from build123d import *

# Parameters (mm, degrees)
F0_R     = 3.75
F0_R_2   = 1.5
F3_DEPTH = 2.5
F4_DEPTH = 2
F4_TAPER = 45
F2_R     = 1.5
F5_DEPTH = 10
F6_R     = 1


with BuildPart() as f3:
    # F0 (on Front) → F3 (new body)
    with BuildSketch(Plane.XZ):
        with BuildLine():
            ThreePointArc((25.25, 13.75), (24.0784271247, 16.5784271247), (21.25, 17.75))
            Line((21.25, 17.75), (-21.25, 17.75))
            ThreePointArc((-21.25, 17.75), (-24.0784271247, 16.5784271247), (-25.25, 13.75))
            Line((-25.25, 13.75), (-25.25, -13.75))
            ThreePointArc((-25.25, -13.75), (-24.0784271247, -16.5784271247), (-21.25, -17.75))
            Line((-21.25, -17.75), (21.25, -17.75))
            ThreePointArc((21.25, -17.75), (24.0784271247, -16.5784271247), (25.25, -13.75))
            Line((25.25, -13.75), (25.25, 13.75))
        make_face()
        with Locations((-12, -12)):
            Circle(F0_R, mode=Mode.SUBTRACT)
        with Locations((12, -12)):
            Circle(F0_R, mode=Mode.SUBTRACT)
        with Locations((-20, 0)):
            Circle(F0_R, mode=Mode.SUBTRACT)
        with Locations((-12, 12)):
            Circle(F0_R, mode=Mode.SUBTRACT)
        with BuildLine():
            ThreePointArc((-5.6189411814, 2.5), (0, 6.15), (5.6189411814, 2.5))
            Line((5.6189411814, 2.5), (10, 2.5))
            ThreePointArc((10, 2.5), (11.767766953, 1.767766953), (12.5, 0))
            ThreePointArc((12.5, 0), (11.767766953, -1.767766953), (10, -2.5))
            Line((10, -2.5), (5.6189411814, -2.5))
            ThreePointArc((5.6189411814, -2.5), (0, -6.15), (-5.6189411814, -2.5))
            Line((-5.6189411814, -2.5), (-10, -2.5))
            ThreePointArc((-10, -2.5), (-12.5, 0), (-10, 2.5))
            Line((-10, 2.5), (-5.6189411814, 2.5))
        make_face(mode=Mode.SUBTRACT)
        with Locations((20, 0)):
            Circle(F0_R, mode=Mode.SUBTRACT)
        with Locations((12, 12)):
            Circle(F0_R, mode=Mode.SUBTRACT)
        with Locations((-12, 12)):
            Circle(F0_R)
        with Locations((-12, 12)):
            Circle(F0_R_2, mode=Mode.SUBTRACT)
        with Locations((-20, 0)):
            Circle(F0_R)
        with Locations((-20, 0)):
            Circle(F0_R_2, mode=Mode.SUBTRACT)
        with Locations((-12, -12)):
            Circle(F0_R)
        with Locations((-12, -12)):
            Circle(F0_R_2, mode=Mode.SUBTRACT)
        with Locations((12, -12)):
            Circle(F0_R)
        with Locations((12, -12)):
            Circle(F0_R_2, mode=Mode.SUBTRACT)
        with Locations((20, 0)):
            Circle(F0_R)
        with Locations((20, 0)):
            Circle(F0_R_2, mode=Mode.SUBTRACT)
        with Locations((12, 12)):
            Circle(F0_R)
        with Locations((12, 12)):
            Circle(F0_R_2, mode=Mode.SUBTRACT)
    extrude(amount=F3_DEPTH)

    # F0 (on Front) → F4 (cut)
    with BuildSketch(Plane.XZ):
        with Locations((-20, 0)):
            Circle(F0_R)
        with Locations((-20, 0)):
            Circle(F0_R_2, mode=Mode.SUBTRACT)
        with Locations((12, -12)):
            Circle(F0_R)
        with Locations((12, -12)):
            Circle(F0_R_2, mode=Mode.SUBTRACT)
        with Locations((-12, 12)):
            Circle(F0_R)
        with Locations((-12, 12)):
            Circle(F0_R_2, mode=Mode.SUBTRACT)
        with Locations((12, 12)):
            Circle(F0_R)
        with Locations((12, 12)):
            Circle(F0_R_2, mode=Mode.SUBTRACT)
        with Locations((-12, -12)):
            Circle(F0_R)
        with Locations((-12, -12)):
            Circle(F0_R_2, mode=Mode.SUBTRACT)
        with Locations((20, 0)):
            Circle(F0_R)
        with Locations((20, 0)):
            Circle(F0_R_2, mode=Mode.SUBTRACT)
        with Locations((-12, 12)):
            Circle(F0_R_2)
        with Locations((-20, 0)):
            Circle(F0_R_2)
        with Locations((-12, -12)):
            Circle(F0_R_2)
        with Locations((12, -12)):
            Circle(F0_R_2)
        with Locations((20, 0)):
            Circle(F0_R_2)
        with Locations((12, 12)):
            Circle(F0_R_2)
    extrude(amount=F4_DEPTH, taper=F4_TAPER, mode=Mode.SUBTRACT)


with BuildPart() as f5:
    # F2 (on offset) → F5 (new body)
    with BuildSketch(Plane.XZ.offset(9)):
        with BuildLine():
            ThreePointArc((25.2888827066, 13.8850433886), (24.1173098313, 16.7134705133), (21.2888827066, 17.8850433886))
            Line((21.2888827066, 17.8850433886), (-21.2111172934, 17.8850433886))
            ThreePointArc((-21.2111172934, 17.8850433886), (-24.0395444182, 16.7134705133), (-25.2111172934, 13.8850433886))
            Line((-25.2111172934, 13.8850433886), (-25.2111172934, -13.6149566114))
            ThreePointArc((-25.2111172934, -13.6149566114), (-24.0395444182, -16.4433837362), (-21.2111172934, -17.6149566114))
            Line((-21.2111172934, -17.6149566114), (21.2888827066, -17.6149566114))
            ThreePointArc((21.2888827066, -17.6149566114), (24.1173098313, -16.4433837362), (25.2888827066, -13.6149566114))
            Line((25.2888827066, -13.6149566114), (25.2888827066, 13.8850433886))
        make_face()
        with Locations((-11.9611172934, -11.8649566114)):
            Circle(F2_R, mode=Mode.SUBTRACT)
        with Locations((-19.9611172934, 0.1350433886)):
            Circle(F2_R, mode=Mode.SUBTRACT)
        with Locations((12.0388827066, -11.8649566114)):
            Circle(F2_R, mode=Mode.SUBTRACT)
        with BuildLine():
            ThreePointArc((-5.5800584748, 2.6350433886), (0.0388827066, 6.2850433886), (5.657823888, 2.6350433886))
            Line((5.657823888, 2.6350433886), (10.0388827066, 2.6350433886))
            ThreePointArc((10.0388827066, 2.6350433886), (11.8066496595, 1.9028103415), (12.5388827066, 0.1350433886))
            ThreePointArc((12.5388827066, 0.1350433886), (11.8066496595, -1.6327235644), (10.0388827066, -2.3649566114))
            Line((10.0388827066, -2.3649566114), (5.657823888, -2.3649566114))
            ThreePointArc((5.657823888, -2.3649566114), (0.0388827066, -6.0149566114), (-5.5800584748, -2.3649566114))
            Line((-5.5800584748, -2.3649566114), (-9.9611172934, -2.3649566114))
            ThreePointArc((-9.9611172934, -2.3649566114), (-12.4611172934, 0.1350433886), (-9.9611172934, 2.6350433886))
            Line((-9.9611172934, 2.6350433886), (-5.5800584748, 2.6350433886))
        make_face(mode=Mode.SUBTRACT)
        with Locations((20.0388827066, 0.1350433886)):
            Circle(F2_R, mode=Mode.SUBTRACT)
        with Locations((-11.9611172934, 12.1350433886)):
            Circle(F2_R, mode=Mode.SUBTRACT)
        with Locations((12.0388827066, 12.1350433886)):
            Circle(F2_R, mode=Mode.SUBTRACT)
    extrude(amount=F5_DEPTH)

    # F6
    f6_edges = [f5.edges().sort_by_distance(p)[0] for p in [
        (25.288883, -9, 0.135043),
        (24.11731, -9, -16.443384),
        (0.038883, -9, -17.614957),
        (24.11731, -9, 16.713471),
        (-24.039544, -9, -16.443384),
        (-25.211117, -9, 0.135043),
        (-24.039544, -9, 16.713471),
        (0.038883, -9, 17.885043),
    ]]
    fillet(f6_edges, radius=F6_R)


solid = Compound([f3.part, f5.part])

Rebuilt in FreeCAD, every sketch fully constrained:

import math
import FreeCAD as App
import Part
import Sketcher

V = App.Vector


def edges_at(feature, points):
    """Names of the edges that pass closest to the given points."""
    edges = feature.Shape.Edges
    near = lambda p: min(range(len(edges)), key=lambda i: edges[i].distToShape(Part.Vertex(*p))[0])
    return sorted({f"Edge{near(p) + 1}" for p in points})

doc = App.newDocument("Part")
body = doc.addObject("PartDesign::Body", "Body")

# Sketch on XZ plane
sketch1 = body.newObject("Sketcher::SketchObject", "Sketch")
sketch1.AttachmentSupport = (doc.getObject("XZ_Plane"), [""])
sketch1.MapMode = "FlatFace"
sketch1.addGeometry(Part.ArcOfCircle(Part.Circle(V(21.25, 13.75, 0), V(0, 0, 1), 4), math.radians(0), math.radians(90)), False)
sketch1.addGeometry(Part.LineSegment(V(21.25, 17.75, 0), V(-21.25, 17.75, 0)), False)
sketch1.addGeometry(Part.ArcOfCircle(Part.Circle(V(-21.25, 13.75, 0), V(0, 0, 1), 4), math.radians(90), math.radians(180)), False)
sketch1.addGeometry(Part.LineSegment(V(-25.25, 13.75, 0), V(-25.25, -13.75, 0)), False)
sketch1.addGeometry(Part.ArcOfCircle(Part.Circle(V(-21.25, -13.75, 0), V(0, 0, 1), 4), math.radians(180), math.radians(270)), False)
sketch1.addGeometry(Part.LineSegment(V(-21.25, -17.75, 0), V(21.25, -17.75, 0)), False)
sketch1.addGeometry(Part.ArcOfCircle(Part.Circle(V(21.25, -13.75, 0), V(0, 0, 1), 4), math.radians(-90), math.radians(0)), False)
sketch1.addGeometry(Part.LineSegment(V(25.25, -13.75, 0), V(25.25, 13.75, 0)), False)
sketch1.addGeometry(Part.Circle(V(-12, -12, 0), V(0, 0, 1), 1.5), False)
sketch1.addGeometry(Part.Circle(V(12, -12, 0), V(0, 0, 1), 1.5), False)
sketch1.addGeometry(Part.Circle(V(-20, 0, 0), V(0, 0, 1), 1.5), False)
sketch1.addGeometry(Part.Circle(V(-12, 12, 0), V(0, 0, 1), 1.5), False)
sketch1.addGeometry(Part.LineSegment(V(-10, 2.5, 0), V(-5.618941, 2.5, 0)), False)
sketch1.addGeometry(Part.ArcOfCircle(Part.Circle(V(0, 0, 0), V(0, 0, 1), 6.15), math.radians(23.985414), math.radians(156.014586)), False)
sketch1.addGeometry(Part.LineSegment(V(5.618941, 2.5, 0), V(10, 2.5, 0)), False)
sketch1.addGeometry(Part.ArcOfCircle(Part.Circle(V(10, 0, 0), V(0, 0, 1), 2.5), math.radians(0), math.radians(90)), False)
sketch1.addGeometry(Part.ArcOfCircle(Part.Circle(V(10, 0, 0), V(0, 0, 1), 2.5), math.radians(-90), math.radians(0)), False)
sketch1.addGeometry(Part.LineSegment(V(10, -2.5, 0), V(5.618941, -2.5, 0)), False)
sketch1.addGeometry(Part.ArcOfCircle(Part.Circle(V(0, 0, 0), V(0, 0, 1), 6.15), math.radians(-156.014586), math.radians(-23.985414)), False)
sketch1.addGeometry(Part.LineSegment(V(-5.618941, -2.5, 0), V(-10, -2.5, 0)), False)
sketch1.addGeometry(Part.ArcOfCircle(Part.Circle(V(-10, 0, 0), V(0, 0, 1), 2.5), math.radians(90), math.radians(270)), False)
sketch1.addGeometry(Part.Circle(V(20, 0, 0), V(0, 0, 1), 1.5), False)
sketch1.addGeometry(Part.Circle(V(12, 12, 0), V(0, 0, 1), 1.5), False)
sketch1.addConstraint(Sketcher.Constraint("Tangent", 0, 2, 1, 1))
sketch1.addConstraint(Sketcher.Constraint("Tangent", 1, 2, 2, 1))
sketch1.addConstraint(Sketcher.Constraint("Tangent", 2, 2, 3, 1))
sketch1.addConstraint(Sketcher.Constraint("Tangent", 3, 2, 4, 1))
sketch1.addConstraint(Sketcher.Constraint("Tangent", 4, 2, 5, 1))
sketch1.addConstraint(Sketcher.Constraint("Tangent", 5, 2, 6, 1))
sketch1.addConstraint(Sketcher.Constraint("Tangent", 6, 2, 7, 1))
sketch1.addConstraint(Sketcher.Constraint("Tangent", 7, 2, 0, 1))
sketch1.addConstraint(Sketcher.Constraint("Coincident", 12, 2, 13, 2))
sketch1.addConstraint(Sketcher.Constraint("Coincident", 13, 1, 14, 1))
sketch1.addConstraint(Sketcher.Constraint("Tangent", 14, 2, 15, 2))
sketch1.addConstraint(Sketcher.Constraint("Tangent", 15, 1, 16, 2))
sketch1.addConstraint(Sketcher.Constraint("Tangent", 16, 1, 17, 1))
sketch1.addConstraint(Sketcher.Constraint("Coincident", 17, 2, 18, 2))
sketch1.addConstraint(Sketcher.Constraint("Coincident", 18, 1, 19, 1))
sketch1.addConstraint(Sketcher.Constraint("Tangent", 19, 2, 20, 2))
sketch1.addConstraint(Sketcher.Constraint("Tangent", 20, 1, 12, 1))
sketch1.addConstraint(Sketcher.Constraint("Horizontal", 1))
sketch1.addConstraint(Sketcher.Constraint("Vertical", 3))
sketch1.addConstraint(Sketcher.Constraint("Horizontal", 5))
sketch1.addConstraint(Sketcher.Constraint("Vertical", 7))
sketch1.addConstraint(Sketcher.Constraint("Horizontal", 12))
sketch1.addConstraint(Sketcher.Constraint("Horizontal", 14))
sketch1.addConstraint(Sketcher.Constraint("Horizontal", 17))
sketch1.addConstraint(Sketcher.Constraint("Horizontal", 19))
sketch1.addConstraint(Sketcher.Constraint("Coincident", 13, 3, -1, 1))
sketch1.addConstraint(Sketcher.Constraint("Coincident", 18, 3, -1, 1))
sketch1.addConstraint(Sketcher.Constraint("Equal", 0, 2))
sketch1.addConstraint(Sketcher.Constraint("Equal", 2, 4))
sketch1.addConstraint(Sketcher.Constraint("Equal", 4, 6))
sketch1.addConstraint(Sketcher.Constraint("Equal", 8, 9))
sketch1.addConstraint(Sketcher.Constraint("Equal", 9, 10))
sketch1.addConstraint(Sketcher.Constraint("Equal", 10, 11))
sketch1.addConstraint(Sketcher.Constraint("Equal", 15, 16))
sketch1.addConstraint(Sketcher.Constraint("Equal", 13, 18))
sketch1.addConstraint(Sketcher.Constraint("Equal", 16, 20))
sketch1.addConstraint(Sketcher.Constraint("Equal", 11, 21))
sketch1.addConstraint(Sketcher.Constraint("Equal", 21, 22))
sketch1.addConstraint(Sketcher.Constraint("Symmetric", 0, 3, 4, 3, -1, 1))
sketch1.addConstraint(Sketcher.Constraint("Symmetric", 9, 3, 11, 3, -1, 1))
sketch1.addConstraint(Sketcher.Constraint("Symmetric", 15, 3, 20, 3, -1, 1))
sketch1.addConstraint(Sketcher.Constraint("Symmetric", 10, 3, 21, 3, -1, 1))
sketch1.addConstraint(Sketcher.Constraint("Symmetric", 8, 3, 22, 3, -1, 1))
sketch1.addConstraint(Sketcher.Constraint("Symmetric", 8, 3, 9, 3, -2))
sketch1.addConstraint(Sketcher.Constraint("PointOnObject", 10, 3, -1))
sketch1.addConstraint(Sketcher.Constraint("PointOnObject", 15, 3, -1))
sketch1.addConstraint(Sketcher.Constraint("PointOnObject", 15, 1, -1))
sketch1.addConstraint(Sketcher.Constraint("Diameter", 8, 3.0))
sketch1.addConstraint(Sketcher.Constraint("Radius", 0, 4.0))
sketch1.addConstraint(Sketcher.Constraint("Radius", 15, 2.5))
sketch1.addConstraint(Sketcher.Constraint("Radius", 13, 6.15))
sketch1.addConstraint(Sketcher.Constraint("DistanceX", 1, 2, 1, 1, 42.5))
sketch1.addConstraint(Sketcher.Constraint("DistanceY", 3, 2, 3, 1, 27.5))
sketch1.addConstraint(Sketcher.Constraint("DistanceX", 8, 3, -1, 1, 12.0))
sketch1.addConstraint(Sketcher.Constraint("DistanceY", 8, 3, -1, 1, 12.0))
sketch1.addConstraint(Sketcher.Constraint("DistanceX", 10, 3, -1, 1, 20.0))
sketch1.addConstraint(Sketcher.Constraint("DistanceX", -1, 1, 15, 3, 10.0))
pad1 = body.newObject("PartDesign::Pad", "Pad")
pad1.Profile = sketch1
pad1.Length = 2.5

# Sketch on XZ plane
sketch2 = body.newObject("Sketcher::SketchObject", "Sketch001")
sketch2.AttachmentSupport = (doc.getObject("XZ_Plane"), [""])
sketch2.MapMode = "FlatFace"
sketch2.addGeometry(Part.Circle(V(-20, 0, 0), V(0, 0, 1), 3.75), False)
sketch2.addGeometry(Part.Circle(V(12, -12, 0), V(0, 0, 1), 3.75), False)
sketch2.addGeometry(Part.Circle(V(-12, 12, 0), V(0, 0, 1), 3.75), False)
sketch2.addGeometry(Part.Circle(V(12, 12, 0), V(0, 0, 1), 3.75), False)
sketch2.addGeometry(Part.Circle(V(-12, -12, 0), V(0, 0, 1), 3.75), False)
sketch2.addGeometry(Part.Circle(V(20, 0, 0), V(0, 0, 1), 3.75), False)
sketch2.addConstraint(Sketcher.Constraint("Equal", 0, 1))
sketch2.addConstraint(Sketcher.Constraint("Equal", 1, 2))
sketch2.addConstraint(Sketcher.Constraint("Equal", 2, 3))
sketch2.addConstraint(Sketcher.Constraint("Equal", 3, 4))
sketch2.addConstraint(Sketcher.Constraint("Equal", 4, 5))
sketch2.addConstraint(Sketcher.Constraint("Symmetric", 1, 3, 2, 3, -1, 1))
sketch2.addConstraint(Sketcher.Constraint("Symmetric", 3, 3, 4, 3, -1, 1))
sketch2.addConstraint(Sketcher.Constraint("Symmetric", 0, 3, 5, 3, -1, 1))
sketch2.addConstraint(Sketcher.Constraint("Symmetric", 2, 3, 3, 3, -2))
sketch2.addConstraint(Sketcher.Constraint("PointOnObject", 0, 3, -1))
sketch2.addConstraint(Sketcher.Constraint("Diameter", 0, 7.5))
sketch2.addConstraint(Sketcher.Constraint("DistanceX", 0, 3, -1, 1, 20.0))
sketch2.addConstraint(Sketcher.Constraint("DistanceX", -1, 1, 1, 3, 12.0))
sketch2.addConstraint(Sketcher.Constraint("DistanceY", 1, 3, -1, 1, 12.0))
pocket1 = body.newObject("PartDesign::Pocket", "Pocket")
pocket1.Profile = sketch2
pocket1.Length = 2
pocket1.Reversed = True
pocket1.TaperAngle = -45
body2 = doc.addObject("PartDesign::Body", "Body001")

# Sketch on XZ plane
sketch3 = body2.newObject("Sketcher::SketchObject", "Sketch002")
sketch3.AttachmentSupport = (doc.getObject("XZ_Plane001"), [""])
sketch3.MapMode = "FlatFace"
sketch3.AttachmentOffset = App.Placement(V(0, 0, 9), App.Rotation())
sketch3.addGeometry(Part.ArcOfCircle(Part.Circle(V(21.288883, 13.885043, 0), V(0, 0, 1), 4), math.radians(0), math.radians(90)), False)
sketch3.addGeometry(Part.LineSegment(V(21.288883, 17.885043, 0), V(-21.211117, 17.885043, 0)), False)
sketch3.addGeometry(Part.ArcOfCircle(Part.Circle(V(-21.211117, 13.885043, 0), V(0, 0, 1), 4), math.radians(90), math.radians(180)), False)
sketch3.addGeometry(Part.LineSegment(V(-25.211117, 13.885043, 0), V(-25.211117, -13.614957, 0)), False)
sketch3.addGeometry(Part.ArcOfCircle(Part.Circle(V(-21.211117, -13.614957, 0), V(0, 0, 1), 4), math.radians(180), math.radians(270)), False)
sketch3.addGeometry(Part.LineSegment(V(-21.211117, -17.614957, 0), V(21.288883, -17.614957, 0)), False)
sketch3.addGeometry(Part.ArcOfCircle(Part.Circle(V(21.288883, -13.614957, 0), V(0, 0, 1), 4), math.radians(-90), math.radians(0)), False)
sketch3.addGeometry(Part.LineSegment(V(25.288883, -13.614957, 0), V(25.288883, 13.885043, 0)), False)
sketch3.addGeometry(Part.Circle(V(-11.961117, -11.864957, 0), V(0, 0, 1), 1.5), False)
sketch3.addGeometry(Part.Circle(V(12.038883, -11.864957, 0), V(0, 0, 1), 1.5), False)
sketch3.addGeometry(Part.Circle(V(-19.961117, 0.135043, 0), V(0, 0, 1), 1.5), False)
sketch3.addGeometry(Part.Circle(V(-11.961117, 12.135043, 0), V(0, 0, 1), 1.5), False)
sketch3.addGeometry(Part.LineSegment(V(-9.961117, 2.635043, 0), V(-5.580058, 2.635043, 0)), False)
sketch3.addGeometry(Part.ArcOfCircle(Part.Circle(V(0.038883, 0.135043, 0), V(0, 0, 1), 6.15), math.radians(23.985414), math.radians(156.014586)), False)
sketch3.addGeometry(Part.LineSegment(V(5.657824, 2.635043, 0), V(10.038883, 2.635043, 0)), False)
sketch3.addGeometry(Part.ArcOfCircle(Part.Circle(V(10.038883, 0.135043, 0), V(0, 0, 1), 2.5), math.radians(0), math.radians(90)), False)
sketch3.addGeometry(Part.ArcOfCircle(Part.Circle(V(10.038883, 0.135043, 0), V(0, 0, 1), 2.5), math.radians(-90), math.radians(0)), False)
sketch3.addGeometry(Part.LineSegment(V(10.038883, -2.364957, 0), V(5.657824, -2.364957, 0)), False)
sketch3.addGeometry(Part.ArcOfCircle(Part.Circle(V(0.038883, 0.135043, 0), V(0, 0, 1), 6.15), math.radians(-156.014586), math.radians(-23.985414)), False)
sketch3.addGeometry(Part.LineSegment(V(-5.580058, -2.364957, 0), V(-9.961117, -2.364957, 0)), False)
sketch3.addGeometry(Part.ArcOfCircle(Part.Circle(V(-9.961117, 0.135043, 0), V(0, 0, 1), 2.5), math.radians(90), math.radians(270)), False)
sketch3.addGeometry(Part.Circle(V(20.038883, 0.135043, 0), V(0, 0, 1), 1.5), False)
sketch3.addGeometry(Part.Circle(V(12.038883, 12.135043, 0), V(0, 0, 1), 1.5), False)
sketch3.addConstraint(Sketcher.Constraint("Tangent", 0, 2, 1, 1))
sketch3.addConstraint(Sketcher.Constraint("Tangent", 1, 2, 2, 1))
sketch3.addConstraint(Sketcher.Constraint("Tangent", 2, 2, 3, 1))
sketch3.addConstraint(Sketcher.Constraint("Tangent", 3, 2, 4, 1))
sketch3.addConstraint(Sketcher.Constraint("Tangent", 4, 2, 5, 1))
sketch3.addConstraint(Sketcher.Constraint("Tangent", 5, 2, 6, 1))
sketch3.addConstraint(Sketcher.Constraint("Tangent", 6, 2, 7, 1))
sketch3.addConstraint(Sketcher.Constraint("Tangent", 7, 2, 0, 1))
sketch3.addConstraint(Sketcher.Constraint("Coincident", 12, 2, 13, 2))
sketch3.addConstraint(Sketcher.Constraint("Coincident", 13, 1, 14, 1))
sketch3.addConstraint(Sketcher.Constraint("Tangent", 14, 2, 15, 2))
sketch3.addConstraint(Sketcher.Constraint("Tangent", 15, 1, 16, 2))
sketch3.addConstraint(Sketcher.Constraint("Tangent", 16, 1, 17, 1))
sketch3.addConstraint(Sketcher.Constraint("Coincident", 17, 2, 18, 2))
sketch3.addConstraint(Sketcher.Constraint("Coincident", 18, 1, 19, 1))
sketch3.addConstraint(Sketcher.Constraint("Tangent", 19, 2, 20, 2))
sketch3.addConstraint(Sketcher.Constraint("Tangent", 20, 1, 12, 1))
sketch3.addConstraint(Sketcher.Constraint("Horizontal", 1))
sketch3.addConstraint(Sketcher.Constraint("Vertical", 3))
sketch3.addConstraint(Sketcher.Constraint("Horizontal", 5))
sketch3.addConstraint(Sketcher.Constraint("Vertical", 7))
sketch3.addConstraint(Sketcher.Constraint("Horizontal", 12))
sketch3.addConstraint(Sketcher.Constraint("Horizontal", 14))
sketch3.addConstraint(Sketcher.Constraint("Horizontal", 17))
sketch3.addConstraint(Sketcher.Constraint("Horizontal", 19))
sketch3.addConstraint(Sketcher.Constraint("Coincident", 18, 3, 13, 3))
sketch3.addConstraint(Sketcher.Constraint("Equal", 0, 2))
sketch3.addConstraint(Sketcher.Constraint("Equal", 2, 4))
sketch3.addConstraint(Sketcher.Constraint("Equal", 4, 6))
sketch3.addConstraint(Sketcher.Constraint("Equal", 8, 9))
sketch3.addConstraint(Sketcher.Constraint("Equal", 9, 10))
sketch3.addConstraint(Sketcher.Constraint("Equal", 10, 11))
sketch3.addConstraint(Sketcher.Constraint("Equal", 15, 16))
sketch3.addConstraint(Sketcher.Constraint("Equal", 13, 18))
sketch3.addConstraint(Sketcher.Constraint("Equal", 16, 20))
sketch3.addConstraint(Sketcher.Constraint("Equal", 11, 21))
sketch3.addConstraint(Sketcher.Constraint("Equal", 21, 22))
sketch3.addConstraint(Sketcher.Constraint("Horizontal", 8, 3, 9, 3))
sketch3.addConstraint(Sketcher.Constraint("Horizontal", 10, 3, 13, 3))
sketch3.addConstraint(Sketcher.Constraint("Horizontal", 13, 3, 15, 3))
sketch3.addConstraint(Sketcher.Constraint("Horizontal", 18, 3, 20, 3))
sketch3.addConstraint(Sketcher.Constraint("Horizontal", 20, 3, 21, 3))
sketch3.addConstraint(Sketcher.Constraint("Horizontal", 11, 3, 22, 3))
sketch3.addConstraint(Sketcher.Constraint("Horizontal", 21, 3, 15, 1))
sketch3.addConstraint(Sketcher.Constraint("Vertical", 8, 3, 11, 3))
sketch3.addConstraint(Sketcher.Constraint("Vertical", 9, 3, 22, 3))
sketch3.addConstraint(Sketcher.Constraint("Equal", 12, 14))
sketch3.addConstraint(Sketcher.Constraint("Diameter", 8, 3.0))
sketch3.addConstraint(Sketcher.Constraint("Radius", 0, 4.0))
sketch3.addConstraint(Sketcher.Constraint("Radius", 15, 2.5))
sketch3.addConstraint(Sketcher.Constraint("Radius", 13, 6.15))
sketch3.addConstraint(Sketcher.Constraint("DistanceX", 1, 2, 1, 1, 42.5))
sketch3.addConstraint(Sketcher.Constraint("DistanceY", 3, 2, 3, 1, 27.5))
sketch3.addConstraint(Sketcher.Constraint("DistanceX", 8, 3, 9, 3, 24.0))
sketch3.addConstraint(Sketcher.Constraint("DistanceX", 10, 3, 8, 3, 8.0))
sketch3.addConstraint(Sketcher.Constraint("DistanceY", 8, 3, 10, 3, 12.0))
sketch3.addConstraint(Sketcher.Constraint("DistanceY", 10, 3, 11, 3, 12.0))
sketch3.addConstraint(Sketcher.Constraint("DistanceX", 8, 3, 13, 3, 12.0))
sketch3.addConstraint(Sketcher.Constraint("DistanceX", 13, 3, 15, 3, 10.0))
sketch3.addConstraint(Sketcher.Constraint("DistanceX", 16, 3, 21, 3, 10.0))
sketch3.addConstraint(Sketcher.Constraint("DistanceX", 4, 3, 8, 3, 9.25))
sketch3.addConstraint(Sketcher.Constraint("DistanceY", 4, 3, 8, 3, 1.75))
sketch3.addConstraint(Sketcher.Constraint("DistanceX", 12, 2, -1, 1, 5.580058))
sketch3.addConstraint(Sketcher.Constraint("DistanceY", -1, 1, 0, 3, 13.885043))
pad2 = body2.newObject("PartDesign::Pad", "Pad001")
pad2.Profile = sketch3
pad2.Length = 10
doc.recompute()

fillet = body2.newObject("PartDesign::Fillet", "Fillet")
fillet.Base = (pad2, edges_at(pad2, [
    (25.289, -9, 0.135),
    (24.117, -9, -16.443),
    (0.039, -9, -17.615),
    (24.117, -9, 16.713),
    (-24.04, -9, -16.443),
    (-25.211, -9, 0.135),
    (-24.04, -9, 16.713),
    (0.039, -9, 17.885),
]))
fillet.Radius = 1

doc.recompute()
